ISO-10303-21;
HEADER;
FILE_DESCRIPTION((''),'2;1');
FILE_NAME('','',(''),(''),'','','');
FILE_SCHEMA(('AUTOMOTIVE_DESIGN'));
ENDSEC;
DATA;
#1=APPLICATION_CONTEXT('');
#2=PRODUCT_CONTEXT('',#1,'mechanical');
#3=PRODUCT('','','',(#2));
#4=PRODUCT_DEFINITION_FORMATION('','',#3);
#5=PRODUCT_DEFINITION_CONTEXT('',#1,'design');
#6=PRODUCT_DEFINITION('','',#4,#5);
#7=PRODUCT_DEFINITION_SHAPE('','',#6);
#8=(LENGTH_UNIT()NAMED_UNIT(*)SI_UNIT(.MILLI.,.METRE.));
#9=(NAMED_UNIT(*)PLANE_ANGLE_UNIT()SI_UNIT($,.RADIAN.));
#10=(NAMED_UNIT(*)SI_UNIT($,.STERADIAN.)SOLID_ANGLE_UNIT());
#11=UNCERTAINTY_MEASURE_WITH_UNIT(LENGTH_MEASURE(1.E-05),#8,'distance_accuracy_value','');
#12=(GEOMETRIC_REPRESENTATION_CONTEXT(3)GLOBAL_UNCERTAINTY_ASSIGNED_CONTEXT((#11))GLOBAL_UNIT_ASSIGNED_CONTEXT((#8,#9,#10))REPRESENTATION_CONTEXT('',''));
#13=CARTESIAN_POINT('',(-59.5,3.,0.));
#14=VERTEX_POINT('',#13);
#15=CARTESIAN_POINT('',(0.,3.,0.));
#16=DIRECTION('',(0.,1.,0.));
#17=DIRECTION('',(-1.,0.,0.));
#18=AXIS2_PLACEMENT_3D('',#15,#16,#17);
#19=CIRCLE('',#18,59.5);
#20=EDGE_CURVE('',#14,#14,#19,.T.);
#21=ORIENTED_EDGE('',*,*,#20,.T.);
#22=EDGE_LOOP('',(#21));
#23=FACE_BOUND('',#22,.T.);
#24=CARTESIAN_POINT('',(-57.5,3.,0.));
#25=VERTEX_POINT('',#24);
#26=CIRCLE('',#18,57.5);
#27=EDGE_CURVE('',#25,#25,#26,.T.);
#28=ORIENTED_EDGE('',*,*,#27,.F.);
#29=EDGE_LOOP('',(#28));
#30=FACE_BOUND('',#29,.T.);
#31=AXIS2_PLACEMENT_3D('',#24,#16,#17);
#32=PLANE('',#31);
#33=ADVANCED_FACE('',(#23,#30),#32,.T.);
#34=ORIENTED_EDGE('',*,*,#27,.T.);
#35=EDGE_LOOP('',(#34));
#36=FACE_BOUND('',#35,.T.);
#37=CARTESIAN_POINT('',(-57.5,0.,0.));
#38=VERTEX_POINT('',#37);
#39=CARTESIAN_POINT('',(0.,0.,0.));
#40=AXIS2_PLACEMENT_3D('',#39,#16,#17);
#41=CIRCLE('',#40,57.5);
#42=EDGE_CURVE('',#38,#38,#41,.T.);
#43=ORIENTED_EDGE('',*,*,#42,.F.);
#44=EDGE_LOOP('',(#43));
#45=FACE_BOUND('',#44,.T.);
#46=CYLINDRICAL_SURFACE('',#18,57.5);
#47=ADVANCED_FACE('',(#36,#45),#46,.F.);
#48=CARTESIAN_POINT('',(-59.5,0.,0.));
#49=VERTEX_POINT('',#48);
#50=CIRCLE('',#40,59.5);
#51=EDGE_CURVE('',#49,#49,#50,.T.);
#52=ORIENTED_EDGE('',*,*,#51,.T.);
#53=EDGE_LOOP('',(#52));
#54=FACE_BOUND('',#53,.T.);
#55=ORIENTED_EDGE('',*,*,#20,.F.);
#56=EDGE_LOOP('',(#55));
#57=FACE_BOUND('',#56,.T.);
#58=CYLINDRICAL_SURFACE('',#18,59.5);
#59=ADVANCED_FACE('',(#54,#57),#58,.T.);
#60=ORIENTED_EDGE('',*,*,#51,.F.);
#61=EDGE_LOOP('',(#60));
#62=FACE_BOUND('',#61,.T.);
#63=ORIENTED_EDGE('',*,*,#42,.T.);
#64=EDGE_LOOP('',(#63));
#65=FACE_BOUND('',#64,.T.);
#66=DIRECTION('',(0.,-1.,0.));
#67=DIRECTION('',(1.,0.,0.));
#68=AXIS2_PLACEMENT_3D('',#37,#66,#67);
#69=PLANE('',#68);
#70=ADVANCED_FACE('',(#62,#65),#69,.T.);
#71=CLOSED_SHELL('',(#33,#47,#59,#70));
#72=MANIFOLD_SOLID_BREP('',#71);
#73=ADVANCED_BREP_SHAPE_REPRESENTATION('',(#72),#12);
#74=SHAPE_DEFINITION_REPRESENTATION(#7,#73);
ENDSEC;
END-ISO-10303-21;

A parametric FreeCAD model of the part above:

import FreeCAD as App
import Part
import Sketcher
from FreeCAD import Vector
Q = App.Units.Quantity

doc = App.newDocument("Part")
body = doc.addObject("PartDesign::Body", "Body")

# Sketch on XY plane
sketch1 = body.newObject("Sketcher::SketchObject", "Sketch")
sketch1.AttachmentSupport = (doc.getObject("XY_Plane"), [""])
sketch1.MapMode = "FlatFace"
sketch1.addGeometry(Part.LineSegment(Vector(-59.5, 3, 0), Vector(-59.5, 0, 0)), False)
sketch1.addGeometry(Part.LineSegment(Vector(-59.5, 0, 0), Vector(-57.5, 0, 0)), False)
sketch1.addGeometry(Part.LineSegment(Vector(-57.5, 0, 0), Vector(-57.5, 3, 0)), False)
sketch1.addGeometry(Part.LineSegment(Vector(-57.5, 3, 0), Vector(-59.5, 3, 0)), False)
sketch1.addConstraint(Sketcher.Constraint("Coincident", 0, 2, 1, 1))
sketch1.addConstraint(Sketcher.Constraint("Coincident", 1, 2, 2, 1))
sketch1.addConstraint(Sketcher.Constraint("Coincident", 2, 2, 3, 1))
sketch1.addConstraint(Sketcher.Constraint("Coincident", 3, 2, 0, 1))
sketch1.addConstraint(Sketcher.Constraint("Vertical", 0))
sketch1.addConstraint(Sketcher.Constraint("Horizontal", 1))
sketch1.addConstraint(Sketcher.Constraint("Vertical", 2))
sketch1.addConstraint(Sketcher.Constraint("Horizontal", 3))
sketch1.addConstraint(Sketcher.Constraint("PointOnObject", 0, 2, -1))
sketch1.addConstraint(Sketcher.Constraint("DistanceX", 1, 1, 1, 2, Q("2 mm")))
sketch1.addConstraint(Sketcher.Constraint("DistanceY", 0, 2, 0, 1, Q("3 mm")))
sketch1.addConstraint(Sketcher.Constraint("DistanceX", 0, 2, -1, 1, Q("59.5 mm")))
revolution = body.newObject("PartDesign::Revolution", "Revolution")
revolution.Profile = sketch1
revolution.ReferenceAxis = (sketch1, ["V_Axis"])
revolution.Angle = 360

doc.recompute()
